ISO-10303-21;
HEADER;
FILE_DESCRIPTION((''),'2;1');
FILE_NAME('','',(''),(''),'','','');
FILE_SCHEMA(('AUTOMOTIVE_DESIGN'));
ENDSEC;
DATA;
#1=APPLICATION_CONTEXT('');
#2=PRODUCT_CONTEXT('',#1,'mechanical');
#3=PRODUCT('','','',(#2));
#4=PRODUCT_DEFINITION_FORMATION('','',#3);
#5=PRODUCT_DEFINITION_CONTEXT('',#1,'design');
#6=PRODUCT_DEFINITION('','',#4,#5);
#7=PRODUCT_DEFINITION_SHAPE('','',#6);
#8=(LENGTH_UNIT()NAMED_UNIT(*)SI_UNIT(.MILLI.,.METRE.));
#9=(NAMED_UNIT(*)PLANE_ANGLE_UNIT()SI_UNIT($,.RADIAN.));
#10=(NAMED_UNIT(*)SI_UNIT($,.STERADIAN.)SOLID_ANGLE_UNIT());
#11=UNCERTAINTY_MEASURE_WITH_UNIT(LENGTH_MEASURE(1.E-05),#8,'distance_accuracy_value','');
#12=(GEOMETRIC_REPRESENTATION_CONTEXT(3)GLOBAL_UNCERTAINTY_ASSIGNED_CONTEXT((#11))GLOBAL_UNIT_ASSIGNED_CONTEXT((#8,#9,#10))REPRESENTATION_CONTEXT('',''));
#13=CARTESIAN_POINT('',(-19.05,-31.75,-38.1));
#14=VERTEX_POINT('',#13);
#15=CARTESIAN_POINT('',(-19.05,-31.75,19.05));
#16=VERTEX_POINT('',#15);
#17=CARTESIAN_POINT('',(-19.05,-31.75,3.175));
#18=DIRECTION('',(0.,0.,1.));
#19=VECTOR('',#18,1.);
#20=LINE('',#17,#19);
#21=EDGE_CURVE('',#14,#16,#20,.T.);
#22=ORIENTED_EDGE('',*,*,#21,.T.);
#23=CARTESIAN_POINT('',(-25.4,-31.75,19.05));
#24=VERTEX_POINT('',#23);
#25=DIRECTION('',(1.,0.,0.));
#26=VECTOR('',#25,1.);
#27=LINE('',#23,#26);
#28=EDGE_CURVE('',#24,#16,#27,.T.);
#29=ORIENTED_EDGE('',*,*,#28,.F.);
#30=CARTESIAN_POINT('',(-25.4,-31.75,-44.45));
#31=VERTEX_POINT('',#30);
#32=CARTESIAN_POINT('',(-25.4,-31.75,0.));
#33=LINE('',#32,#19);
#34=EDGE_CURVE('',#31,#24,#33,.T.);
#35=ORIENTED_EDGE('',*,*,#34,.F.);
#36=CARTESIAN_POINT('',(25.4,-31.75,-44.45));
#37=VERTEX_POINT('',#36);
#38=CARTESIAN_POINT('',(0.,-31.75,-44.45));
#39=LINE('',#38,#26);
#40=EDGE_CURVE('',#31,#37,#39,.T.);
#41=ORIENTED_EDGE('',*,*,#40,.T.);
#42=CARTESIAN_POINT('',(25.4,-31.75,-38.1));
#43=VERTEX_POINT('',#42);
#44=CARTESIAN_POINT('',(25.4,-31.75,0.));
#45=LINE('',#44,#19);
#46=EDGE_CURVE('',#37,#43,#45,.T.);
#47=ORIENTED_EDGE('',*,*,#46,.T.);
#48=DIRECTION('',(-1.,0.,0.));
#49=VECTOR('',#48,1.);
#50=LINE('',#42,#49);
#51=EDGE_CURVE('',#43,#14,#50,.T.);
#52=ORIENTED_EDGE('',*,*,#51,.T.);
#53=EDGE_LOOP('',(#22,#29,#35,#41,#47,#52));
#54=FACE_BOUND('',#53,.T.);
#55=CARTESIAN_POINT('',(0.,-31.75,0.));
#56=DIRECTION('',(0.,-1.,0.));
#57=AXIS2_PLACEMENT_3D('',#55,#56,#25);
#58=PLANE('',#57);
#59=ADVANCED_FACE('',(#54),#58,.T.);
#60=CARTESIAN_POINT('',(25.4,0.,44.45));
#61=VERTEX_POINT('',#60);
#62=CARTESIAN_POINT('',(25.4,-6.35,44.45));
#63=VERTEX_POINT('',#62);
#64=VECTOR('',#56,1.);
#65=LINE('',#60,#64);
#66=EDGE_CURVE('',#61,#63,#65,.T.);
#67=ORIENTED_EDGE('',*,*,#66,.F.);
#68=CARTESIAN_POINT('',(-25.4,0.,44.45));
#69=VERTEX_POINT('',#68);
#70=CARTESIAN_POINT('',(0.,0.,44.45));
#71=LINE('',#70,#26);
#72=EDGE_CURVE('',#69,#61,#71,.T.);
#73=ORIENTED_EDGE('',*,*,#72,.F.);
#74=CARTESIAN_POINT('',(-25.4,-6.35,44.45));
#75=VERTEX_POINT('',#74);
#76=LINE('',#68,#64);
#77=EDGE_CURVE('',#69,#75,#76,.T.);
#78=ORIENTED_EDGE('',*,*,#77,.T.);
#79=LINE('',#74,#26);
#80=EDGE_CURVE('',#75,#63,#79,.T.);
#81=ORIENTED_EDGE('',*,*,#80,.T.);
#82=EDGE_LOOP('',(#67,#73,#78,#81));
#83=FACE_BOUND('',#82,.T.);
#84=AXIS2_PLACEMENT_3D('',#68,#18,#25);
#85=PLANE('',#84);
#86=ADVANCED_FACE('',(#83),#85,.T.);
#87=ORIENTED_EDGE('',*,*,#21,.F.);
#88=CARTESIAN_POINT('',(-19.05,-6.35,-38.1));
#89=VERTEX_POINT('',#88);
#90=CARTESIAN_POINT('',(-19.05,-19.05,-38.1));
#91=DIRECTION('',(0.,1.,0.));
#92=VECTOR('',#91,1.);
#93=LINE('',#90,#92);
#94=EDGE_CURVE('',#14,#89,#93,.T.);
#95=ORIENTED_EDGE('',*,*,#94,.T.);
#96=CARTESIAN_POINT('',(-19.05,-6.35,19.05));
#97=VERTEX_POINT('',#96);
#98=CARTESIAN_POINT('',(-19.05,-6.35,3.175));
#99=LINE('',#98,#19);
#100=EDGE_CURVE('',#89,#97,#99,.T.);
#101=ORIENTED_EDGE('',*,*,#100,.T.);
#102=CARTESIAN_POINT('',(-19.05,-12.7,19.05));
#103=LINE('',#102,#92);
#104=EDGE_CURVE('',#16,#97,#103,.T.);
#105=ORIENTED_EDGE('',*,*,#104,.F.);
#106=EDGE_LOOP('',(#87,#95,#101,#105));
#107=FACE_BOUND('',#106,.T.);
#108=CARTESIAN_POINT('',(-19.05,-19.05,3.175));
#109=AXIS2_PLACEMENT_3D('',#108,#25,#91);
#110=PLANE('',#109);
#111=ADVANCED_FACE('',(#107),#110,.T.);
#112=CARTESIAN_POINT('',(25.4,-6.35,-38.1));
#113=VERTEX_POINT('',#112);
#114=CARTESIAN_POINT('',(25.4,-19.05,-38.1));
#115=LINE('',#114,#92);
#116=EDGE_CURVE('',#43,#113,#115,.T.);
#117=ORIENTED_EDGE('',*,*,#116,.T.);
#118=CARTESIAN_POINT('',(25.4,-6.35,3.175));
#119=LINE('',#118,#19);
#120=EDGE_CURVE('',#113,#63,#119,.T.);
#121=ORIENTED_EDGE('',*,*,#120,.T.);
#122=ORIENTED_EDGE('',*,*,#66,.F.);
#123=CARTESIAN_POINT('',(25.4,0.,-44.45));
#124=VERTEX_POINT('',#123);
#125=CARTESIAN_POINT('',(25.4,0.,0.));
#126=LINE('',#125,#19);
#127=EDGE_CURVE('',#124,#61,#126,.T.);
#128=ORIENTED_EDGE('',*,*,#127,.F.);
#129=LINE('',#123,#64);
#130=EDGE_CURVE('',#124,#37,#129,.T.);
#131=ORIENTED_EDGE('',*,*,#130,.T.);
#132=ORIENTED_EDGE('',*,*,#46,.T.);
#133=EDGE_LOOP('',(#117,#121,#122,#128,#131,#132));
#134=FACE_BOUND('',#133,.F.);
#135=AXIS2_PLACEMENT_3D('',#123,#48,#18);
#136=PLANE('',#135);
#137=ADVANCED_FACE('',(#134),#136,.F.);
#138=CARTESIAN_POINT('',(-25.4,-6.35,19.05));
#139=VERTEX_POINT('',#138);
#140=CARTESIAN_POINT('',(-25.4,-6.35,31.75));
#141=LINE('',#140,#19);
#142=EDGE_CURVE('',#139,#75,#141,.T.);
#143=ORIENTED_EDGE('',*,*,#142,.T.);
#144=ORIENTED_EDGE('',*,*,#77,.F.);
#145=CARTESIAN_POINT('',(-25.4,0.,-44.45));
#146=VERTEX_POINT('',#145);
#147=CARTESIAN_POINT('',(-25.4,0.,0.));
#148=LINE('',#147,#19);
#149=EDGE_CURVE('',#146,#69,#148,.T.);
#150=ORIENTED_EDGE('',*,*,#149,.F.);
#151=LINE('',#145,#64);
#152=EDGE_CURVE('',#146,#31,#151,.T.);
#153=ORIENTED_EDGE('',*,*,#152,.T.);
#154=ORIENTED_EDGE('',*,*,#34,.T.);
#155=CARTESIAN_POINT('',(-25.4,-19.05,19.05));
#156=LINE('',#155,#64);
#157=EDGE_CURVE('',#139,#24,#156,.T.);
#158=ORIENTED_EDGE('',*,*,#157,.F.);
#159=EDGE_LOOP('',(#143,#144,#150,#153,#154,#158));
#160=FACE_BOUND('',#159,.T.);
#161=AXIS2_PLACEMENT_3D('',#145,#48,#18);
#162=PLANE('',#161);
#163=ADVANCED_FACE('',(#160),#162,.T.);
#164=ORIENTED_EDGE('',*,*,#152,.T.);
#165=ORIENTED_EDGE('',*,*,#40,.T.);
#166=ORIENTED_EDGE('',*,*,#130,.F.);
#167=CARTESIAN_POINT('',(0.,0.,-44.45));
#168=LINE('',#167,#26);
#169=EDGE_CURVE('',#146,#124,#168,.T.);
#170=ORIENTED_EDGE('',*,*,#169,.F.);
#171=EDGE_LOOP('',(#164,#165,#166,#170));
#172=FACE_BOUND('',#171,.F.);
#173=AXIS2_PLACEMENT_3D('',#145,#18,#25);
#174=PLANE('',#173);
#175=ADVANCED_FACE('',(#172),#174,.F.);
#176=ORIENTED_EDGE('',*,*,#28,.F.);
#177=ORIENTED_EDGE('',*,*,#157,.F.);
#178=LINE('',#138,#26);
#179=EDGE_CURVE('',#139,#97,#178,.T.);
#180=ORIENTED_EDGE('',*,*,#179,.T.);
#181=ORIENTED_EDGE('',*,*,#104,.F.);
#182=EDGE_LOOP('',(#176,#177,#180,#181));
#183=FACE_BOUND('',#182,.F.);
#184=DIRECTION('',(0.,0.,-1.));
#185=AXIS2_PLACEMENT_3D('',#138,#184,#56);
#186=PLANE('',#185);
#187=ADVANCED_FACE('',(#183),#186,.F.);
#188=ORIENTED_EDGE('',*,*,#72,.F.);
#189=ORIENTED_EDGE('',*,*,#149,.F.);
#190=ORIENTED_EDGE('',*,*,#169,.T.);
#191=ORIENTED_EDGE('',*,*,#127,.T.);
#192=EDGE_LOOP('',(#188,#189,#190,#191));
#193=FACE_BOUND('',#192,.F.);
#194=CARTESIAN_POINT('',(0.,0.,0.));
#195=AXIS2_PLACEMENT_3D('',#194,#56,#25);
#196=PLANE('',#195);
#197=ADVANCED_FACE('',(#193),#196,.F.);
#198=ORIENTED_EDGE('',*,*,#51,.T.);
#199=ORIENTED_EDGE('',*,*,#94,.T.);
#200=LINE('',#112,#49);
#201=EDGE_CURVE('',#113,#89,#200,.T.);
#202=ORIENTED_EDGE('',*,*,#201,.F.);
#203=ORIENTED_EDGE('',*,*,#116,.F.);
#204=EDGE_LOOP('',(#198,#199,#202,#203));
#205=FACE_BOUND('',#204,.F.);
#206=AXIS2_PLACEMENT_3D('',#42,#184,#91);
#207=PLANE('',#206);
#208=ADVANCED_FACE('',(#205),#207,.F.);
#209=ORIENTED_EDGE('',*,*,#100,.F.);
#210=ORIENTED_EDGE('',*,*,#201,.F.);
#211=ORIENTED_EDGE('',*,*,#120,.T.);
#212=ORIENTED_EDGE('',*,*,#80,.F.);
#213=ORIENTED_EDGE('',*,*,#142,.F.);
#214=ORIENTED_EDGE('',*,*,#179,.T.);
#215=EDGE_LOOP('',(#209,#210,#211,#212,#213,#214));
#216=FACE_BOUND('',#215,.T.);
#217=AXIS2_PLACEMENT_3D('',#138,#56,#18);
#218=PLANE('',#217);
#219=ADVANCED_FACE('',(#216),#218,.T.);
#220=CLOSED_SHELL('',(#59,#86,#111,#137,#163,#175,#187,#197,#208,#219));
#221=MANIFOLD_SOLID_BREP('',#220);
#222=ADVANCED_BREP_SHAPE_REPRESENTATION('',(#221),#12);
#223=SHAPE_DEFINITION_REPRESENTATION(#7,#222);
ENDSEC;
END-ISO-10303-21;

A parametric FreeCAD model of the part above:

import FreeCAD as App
import Part
import Sketcher

V = App.Vector
Q = App.Units.Quantity

doc = App.newDocument("Part")
params = doc.addObject("Spreadsheet::Sheet", "Params")
for row, (alias, value) in enumerate([
    ("sketch1_width", "2 in"),
    ("sketch1_height", "3.5 in"),
    ("pad1_length", "1.25 in"),
    ("sketch2_width", "1 in"),
    ("sketch2_height", "3.25 in"),
    ("pocket1_length", "1.75 in"),
    ("sketch3_width", "1 in"),
    ("pocket2_length", "1 in"),
], start=1):
    params.set(f"A{row}", alias)
    params.set(f"B{row}", "=" + value)
    params.setAlias(f"B{row}", alias)

body = doc.addObject("PartDesign::Body", "Body")

# Sketch on XZ plane
sketch1 = body.newObject("Sketcher::SketchObject", "Sketch")
sketch1.AttachmentSupport = (doc.getObject("XZ_Plane"), [""])
sketch1.MapMode = "FlatFace"
sketch1.addGeometry([
    Part.LineSegment(V(-25, 44, 0), V(-25, -44, 0)),
    Part.LineSegment(V(-25, -44, 0), V(25, -44, 0)),
    Part.LineSegment(V(25, -44, 0), V(25, 44, 0)),
    Part.LineSegment(V(25, 44, 0), V(-25, 44, 0)),
], False)
sketch1.addConstraint([
    Sketcher.Constraint("Coincident", 0, 2, 1, 1),
    Sketcher.Constraint("Coincident", 1, 2, 2, 1),
    Sketcher.Constraint("Coincident", 2, 2, 3, 1),
    Sketcher.Constraint("Coincident", 3, 2, 0, 1),
    Sketcher.Constraint("Vertical", 0),
    Sketcher.Constraint("Horizontal", 1),
    Sketcher.Constraint("Vertical", 2),
    Sketcher.Constraint("Horizontal", 3),
    Sketcher.Constraint("Symmetric", 0, 2, 2, 2, -1, 1),
    Sketcher.Constraint("DistanceX", 1, 1, 1, 2, Q("2 in")),
    Sketcher.Constraint("DistanceY", 0, 2, 0, 1, Q("3.5 in")),
])
sketch1.setExpression("Constraints[9]", "Params.sketch1_width")
sketch1.setExpression("Constraints[10]", "Params.sketch1_height")
pad1 = body.newObject("PartDesign::Pad", "Pad")
pad1.Profile = sketch1
pad1.setExpression("Length", "Params.pad1_length")

# Sketch on YZ plane
sketch2 = body.newObject("Sketcher::SketchObject", "Sketch001")
sketch2.AttachmentSupport = (doc.getObject("YZ_Plane"), [""])
sketch2.MapMode = "FlatFace"
sketch2.AttachmentOffset = App.Placement(V(0, 0, 1 * 25.4), App.Rotation())
sketch2.addGeometry([
    Part.LineSegment(V(-32, 44, 0), V(-32, -38, 0)),
    Part.LineSegment(V(-32, -38, 0), V(-6, -38, 0)),
    Part.LineSegment(V(-6, -38, 0), V(-6, 44, 0)),
    Part.LineSegment(V(-6, 44, 0), V(-32, 44, 0)),
], False)
sketch2.addConstraint([
    Sketcher.Constraint("Coincident", 0, 2, 1, 1),
    Sketcher.Constraint("Coincident", 1, 2, 2, 1),
    Sketcher.Constraint("Coincident", 2, 2, 3, 1),
    Sketcher.Constraint("Coincident", 3, 2, 0, 1),
    Sketcher.Constraint("Vertical", 0),
    Sketcher.Constraint("Horizontal", 1),
    Sketcher.Constraint("Vertical", 2),
    Sketcher.Constraint("Horizontal", 3),
    Sketcher.Constraint("DistanceX", 1, 1, 1, 2, Q("1 in")),
    Sketcher.Constraint("DistanceY", 0, 2, 0, 1, Q("3.25 in")),
    Sketcher.Constraint("DistanceY", 0, 2, -1, 1, Q("1.5 in")),
    Sketcher.Constraint("DistanceX", 0, 2, -1, 1, Q("1.25 in")),
])
sketch2.setExpression("Constraints[8]", "Params.sketch2_width")
sketch2.setExpression("Constraints[9]", "Params.sketch2_height")
pocket1 = body.newObject("PartDesign::Pocket", "Pocket")
pocket1.Profile = sketch2
pocket1.setExpression("Length", "Params.pocket1_length")

# Sketch on YZ plane
sketch3 = body.newObject("Sketcher::SketchObject", "Sketch002")
sketch3.AttachmentSupport = (doc.getObject("YZ_Plane"), [""])
sketch3.MapMode = "FlatFace"
sketch3.AttachmentOffset = App.Placement(V(0, 0, -1 * 25.4), App.Rotation())
sketch3.addGeometry([
    Part.LineSegment(V(-6, 44, 0), V(-6, 19, 0)),
    Part.LineSegment(V(-6, 19, 0), V(-32, 19, 0)),
    Part.LineSegment(V(-32, 19, 0), V(-32, 44, 0)),
    Part.LineSegment(V(-32, 44, 0), V(-6, 44, 0)),
], False)
sketch3.addConstraint([
    Sketcher.Constraint("Coincident", 0, 2, 1, 1),
    Sketcher.Constraint("Coincident", 1, 2, 2, 1),
    Sketcher.Constraint("Coincident", 2, 2, 3, 1),
    Sketcher.Constraint("Coincident", 3, 2, 0, 1),
    Sketcher.Constraint("Vertical", 0),
    Sketcher.Constraint("Horizontal", 1),
    Sketcher.Constraint("Vertical", 2),
    Sketcher.Constraint("Horizontal", 3),
    Sketcher.Constraint("Equal", 3, 0),
    Sketcher.Constraint("DistanceX", 1, 2, 1, 1, Q("1 in")),
    Sketcher.Constraint("DistanceX", 0, 2, -1, 1, Q("0.25 in")),
    Sketcher.Constraint("DistanceY", -1, 1, 0, 2, Q("0.75 in")),
])
sketch3.setExpression("Constraints[9]", "Params.sketch3_width")
pocket2 = body.newObject("PartDesign::Pocket", "Pocket001")
pocket2.Profile = sketch3
pocket2.setExpression("Length", "Params.pocket2_length")
pocket2.Reversed = True

doc.recompute()
